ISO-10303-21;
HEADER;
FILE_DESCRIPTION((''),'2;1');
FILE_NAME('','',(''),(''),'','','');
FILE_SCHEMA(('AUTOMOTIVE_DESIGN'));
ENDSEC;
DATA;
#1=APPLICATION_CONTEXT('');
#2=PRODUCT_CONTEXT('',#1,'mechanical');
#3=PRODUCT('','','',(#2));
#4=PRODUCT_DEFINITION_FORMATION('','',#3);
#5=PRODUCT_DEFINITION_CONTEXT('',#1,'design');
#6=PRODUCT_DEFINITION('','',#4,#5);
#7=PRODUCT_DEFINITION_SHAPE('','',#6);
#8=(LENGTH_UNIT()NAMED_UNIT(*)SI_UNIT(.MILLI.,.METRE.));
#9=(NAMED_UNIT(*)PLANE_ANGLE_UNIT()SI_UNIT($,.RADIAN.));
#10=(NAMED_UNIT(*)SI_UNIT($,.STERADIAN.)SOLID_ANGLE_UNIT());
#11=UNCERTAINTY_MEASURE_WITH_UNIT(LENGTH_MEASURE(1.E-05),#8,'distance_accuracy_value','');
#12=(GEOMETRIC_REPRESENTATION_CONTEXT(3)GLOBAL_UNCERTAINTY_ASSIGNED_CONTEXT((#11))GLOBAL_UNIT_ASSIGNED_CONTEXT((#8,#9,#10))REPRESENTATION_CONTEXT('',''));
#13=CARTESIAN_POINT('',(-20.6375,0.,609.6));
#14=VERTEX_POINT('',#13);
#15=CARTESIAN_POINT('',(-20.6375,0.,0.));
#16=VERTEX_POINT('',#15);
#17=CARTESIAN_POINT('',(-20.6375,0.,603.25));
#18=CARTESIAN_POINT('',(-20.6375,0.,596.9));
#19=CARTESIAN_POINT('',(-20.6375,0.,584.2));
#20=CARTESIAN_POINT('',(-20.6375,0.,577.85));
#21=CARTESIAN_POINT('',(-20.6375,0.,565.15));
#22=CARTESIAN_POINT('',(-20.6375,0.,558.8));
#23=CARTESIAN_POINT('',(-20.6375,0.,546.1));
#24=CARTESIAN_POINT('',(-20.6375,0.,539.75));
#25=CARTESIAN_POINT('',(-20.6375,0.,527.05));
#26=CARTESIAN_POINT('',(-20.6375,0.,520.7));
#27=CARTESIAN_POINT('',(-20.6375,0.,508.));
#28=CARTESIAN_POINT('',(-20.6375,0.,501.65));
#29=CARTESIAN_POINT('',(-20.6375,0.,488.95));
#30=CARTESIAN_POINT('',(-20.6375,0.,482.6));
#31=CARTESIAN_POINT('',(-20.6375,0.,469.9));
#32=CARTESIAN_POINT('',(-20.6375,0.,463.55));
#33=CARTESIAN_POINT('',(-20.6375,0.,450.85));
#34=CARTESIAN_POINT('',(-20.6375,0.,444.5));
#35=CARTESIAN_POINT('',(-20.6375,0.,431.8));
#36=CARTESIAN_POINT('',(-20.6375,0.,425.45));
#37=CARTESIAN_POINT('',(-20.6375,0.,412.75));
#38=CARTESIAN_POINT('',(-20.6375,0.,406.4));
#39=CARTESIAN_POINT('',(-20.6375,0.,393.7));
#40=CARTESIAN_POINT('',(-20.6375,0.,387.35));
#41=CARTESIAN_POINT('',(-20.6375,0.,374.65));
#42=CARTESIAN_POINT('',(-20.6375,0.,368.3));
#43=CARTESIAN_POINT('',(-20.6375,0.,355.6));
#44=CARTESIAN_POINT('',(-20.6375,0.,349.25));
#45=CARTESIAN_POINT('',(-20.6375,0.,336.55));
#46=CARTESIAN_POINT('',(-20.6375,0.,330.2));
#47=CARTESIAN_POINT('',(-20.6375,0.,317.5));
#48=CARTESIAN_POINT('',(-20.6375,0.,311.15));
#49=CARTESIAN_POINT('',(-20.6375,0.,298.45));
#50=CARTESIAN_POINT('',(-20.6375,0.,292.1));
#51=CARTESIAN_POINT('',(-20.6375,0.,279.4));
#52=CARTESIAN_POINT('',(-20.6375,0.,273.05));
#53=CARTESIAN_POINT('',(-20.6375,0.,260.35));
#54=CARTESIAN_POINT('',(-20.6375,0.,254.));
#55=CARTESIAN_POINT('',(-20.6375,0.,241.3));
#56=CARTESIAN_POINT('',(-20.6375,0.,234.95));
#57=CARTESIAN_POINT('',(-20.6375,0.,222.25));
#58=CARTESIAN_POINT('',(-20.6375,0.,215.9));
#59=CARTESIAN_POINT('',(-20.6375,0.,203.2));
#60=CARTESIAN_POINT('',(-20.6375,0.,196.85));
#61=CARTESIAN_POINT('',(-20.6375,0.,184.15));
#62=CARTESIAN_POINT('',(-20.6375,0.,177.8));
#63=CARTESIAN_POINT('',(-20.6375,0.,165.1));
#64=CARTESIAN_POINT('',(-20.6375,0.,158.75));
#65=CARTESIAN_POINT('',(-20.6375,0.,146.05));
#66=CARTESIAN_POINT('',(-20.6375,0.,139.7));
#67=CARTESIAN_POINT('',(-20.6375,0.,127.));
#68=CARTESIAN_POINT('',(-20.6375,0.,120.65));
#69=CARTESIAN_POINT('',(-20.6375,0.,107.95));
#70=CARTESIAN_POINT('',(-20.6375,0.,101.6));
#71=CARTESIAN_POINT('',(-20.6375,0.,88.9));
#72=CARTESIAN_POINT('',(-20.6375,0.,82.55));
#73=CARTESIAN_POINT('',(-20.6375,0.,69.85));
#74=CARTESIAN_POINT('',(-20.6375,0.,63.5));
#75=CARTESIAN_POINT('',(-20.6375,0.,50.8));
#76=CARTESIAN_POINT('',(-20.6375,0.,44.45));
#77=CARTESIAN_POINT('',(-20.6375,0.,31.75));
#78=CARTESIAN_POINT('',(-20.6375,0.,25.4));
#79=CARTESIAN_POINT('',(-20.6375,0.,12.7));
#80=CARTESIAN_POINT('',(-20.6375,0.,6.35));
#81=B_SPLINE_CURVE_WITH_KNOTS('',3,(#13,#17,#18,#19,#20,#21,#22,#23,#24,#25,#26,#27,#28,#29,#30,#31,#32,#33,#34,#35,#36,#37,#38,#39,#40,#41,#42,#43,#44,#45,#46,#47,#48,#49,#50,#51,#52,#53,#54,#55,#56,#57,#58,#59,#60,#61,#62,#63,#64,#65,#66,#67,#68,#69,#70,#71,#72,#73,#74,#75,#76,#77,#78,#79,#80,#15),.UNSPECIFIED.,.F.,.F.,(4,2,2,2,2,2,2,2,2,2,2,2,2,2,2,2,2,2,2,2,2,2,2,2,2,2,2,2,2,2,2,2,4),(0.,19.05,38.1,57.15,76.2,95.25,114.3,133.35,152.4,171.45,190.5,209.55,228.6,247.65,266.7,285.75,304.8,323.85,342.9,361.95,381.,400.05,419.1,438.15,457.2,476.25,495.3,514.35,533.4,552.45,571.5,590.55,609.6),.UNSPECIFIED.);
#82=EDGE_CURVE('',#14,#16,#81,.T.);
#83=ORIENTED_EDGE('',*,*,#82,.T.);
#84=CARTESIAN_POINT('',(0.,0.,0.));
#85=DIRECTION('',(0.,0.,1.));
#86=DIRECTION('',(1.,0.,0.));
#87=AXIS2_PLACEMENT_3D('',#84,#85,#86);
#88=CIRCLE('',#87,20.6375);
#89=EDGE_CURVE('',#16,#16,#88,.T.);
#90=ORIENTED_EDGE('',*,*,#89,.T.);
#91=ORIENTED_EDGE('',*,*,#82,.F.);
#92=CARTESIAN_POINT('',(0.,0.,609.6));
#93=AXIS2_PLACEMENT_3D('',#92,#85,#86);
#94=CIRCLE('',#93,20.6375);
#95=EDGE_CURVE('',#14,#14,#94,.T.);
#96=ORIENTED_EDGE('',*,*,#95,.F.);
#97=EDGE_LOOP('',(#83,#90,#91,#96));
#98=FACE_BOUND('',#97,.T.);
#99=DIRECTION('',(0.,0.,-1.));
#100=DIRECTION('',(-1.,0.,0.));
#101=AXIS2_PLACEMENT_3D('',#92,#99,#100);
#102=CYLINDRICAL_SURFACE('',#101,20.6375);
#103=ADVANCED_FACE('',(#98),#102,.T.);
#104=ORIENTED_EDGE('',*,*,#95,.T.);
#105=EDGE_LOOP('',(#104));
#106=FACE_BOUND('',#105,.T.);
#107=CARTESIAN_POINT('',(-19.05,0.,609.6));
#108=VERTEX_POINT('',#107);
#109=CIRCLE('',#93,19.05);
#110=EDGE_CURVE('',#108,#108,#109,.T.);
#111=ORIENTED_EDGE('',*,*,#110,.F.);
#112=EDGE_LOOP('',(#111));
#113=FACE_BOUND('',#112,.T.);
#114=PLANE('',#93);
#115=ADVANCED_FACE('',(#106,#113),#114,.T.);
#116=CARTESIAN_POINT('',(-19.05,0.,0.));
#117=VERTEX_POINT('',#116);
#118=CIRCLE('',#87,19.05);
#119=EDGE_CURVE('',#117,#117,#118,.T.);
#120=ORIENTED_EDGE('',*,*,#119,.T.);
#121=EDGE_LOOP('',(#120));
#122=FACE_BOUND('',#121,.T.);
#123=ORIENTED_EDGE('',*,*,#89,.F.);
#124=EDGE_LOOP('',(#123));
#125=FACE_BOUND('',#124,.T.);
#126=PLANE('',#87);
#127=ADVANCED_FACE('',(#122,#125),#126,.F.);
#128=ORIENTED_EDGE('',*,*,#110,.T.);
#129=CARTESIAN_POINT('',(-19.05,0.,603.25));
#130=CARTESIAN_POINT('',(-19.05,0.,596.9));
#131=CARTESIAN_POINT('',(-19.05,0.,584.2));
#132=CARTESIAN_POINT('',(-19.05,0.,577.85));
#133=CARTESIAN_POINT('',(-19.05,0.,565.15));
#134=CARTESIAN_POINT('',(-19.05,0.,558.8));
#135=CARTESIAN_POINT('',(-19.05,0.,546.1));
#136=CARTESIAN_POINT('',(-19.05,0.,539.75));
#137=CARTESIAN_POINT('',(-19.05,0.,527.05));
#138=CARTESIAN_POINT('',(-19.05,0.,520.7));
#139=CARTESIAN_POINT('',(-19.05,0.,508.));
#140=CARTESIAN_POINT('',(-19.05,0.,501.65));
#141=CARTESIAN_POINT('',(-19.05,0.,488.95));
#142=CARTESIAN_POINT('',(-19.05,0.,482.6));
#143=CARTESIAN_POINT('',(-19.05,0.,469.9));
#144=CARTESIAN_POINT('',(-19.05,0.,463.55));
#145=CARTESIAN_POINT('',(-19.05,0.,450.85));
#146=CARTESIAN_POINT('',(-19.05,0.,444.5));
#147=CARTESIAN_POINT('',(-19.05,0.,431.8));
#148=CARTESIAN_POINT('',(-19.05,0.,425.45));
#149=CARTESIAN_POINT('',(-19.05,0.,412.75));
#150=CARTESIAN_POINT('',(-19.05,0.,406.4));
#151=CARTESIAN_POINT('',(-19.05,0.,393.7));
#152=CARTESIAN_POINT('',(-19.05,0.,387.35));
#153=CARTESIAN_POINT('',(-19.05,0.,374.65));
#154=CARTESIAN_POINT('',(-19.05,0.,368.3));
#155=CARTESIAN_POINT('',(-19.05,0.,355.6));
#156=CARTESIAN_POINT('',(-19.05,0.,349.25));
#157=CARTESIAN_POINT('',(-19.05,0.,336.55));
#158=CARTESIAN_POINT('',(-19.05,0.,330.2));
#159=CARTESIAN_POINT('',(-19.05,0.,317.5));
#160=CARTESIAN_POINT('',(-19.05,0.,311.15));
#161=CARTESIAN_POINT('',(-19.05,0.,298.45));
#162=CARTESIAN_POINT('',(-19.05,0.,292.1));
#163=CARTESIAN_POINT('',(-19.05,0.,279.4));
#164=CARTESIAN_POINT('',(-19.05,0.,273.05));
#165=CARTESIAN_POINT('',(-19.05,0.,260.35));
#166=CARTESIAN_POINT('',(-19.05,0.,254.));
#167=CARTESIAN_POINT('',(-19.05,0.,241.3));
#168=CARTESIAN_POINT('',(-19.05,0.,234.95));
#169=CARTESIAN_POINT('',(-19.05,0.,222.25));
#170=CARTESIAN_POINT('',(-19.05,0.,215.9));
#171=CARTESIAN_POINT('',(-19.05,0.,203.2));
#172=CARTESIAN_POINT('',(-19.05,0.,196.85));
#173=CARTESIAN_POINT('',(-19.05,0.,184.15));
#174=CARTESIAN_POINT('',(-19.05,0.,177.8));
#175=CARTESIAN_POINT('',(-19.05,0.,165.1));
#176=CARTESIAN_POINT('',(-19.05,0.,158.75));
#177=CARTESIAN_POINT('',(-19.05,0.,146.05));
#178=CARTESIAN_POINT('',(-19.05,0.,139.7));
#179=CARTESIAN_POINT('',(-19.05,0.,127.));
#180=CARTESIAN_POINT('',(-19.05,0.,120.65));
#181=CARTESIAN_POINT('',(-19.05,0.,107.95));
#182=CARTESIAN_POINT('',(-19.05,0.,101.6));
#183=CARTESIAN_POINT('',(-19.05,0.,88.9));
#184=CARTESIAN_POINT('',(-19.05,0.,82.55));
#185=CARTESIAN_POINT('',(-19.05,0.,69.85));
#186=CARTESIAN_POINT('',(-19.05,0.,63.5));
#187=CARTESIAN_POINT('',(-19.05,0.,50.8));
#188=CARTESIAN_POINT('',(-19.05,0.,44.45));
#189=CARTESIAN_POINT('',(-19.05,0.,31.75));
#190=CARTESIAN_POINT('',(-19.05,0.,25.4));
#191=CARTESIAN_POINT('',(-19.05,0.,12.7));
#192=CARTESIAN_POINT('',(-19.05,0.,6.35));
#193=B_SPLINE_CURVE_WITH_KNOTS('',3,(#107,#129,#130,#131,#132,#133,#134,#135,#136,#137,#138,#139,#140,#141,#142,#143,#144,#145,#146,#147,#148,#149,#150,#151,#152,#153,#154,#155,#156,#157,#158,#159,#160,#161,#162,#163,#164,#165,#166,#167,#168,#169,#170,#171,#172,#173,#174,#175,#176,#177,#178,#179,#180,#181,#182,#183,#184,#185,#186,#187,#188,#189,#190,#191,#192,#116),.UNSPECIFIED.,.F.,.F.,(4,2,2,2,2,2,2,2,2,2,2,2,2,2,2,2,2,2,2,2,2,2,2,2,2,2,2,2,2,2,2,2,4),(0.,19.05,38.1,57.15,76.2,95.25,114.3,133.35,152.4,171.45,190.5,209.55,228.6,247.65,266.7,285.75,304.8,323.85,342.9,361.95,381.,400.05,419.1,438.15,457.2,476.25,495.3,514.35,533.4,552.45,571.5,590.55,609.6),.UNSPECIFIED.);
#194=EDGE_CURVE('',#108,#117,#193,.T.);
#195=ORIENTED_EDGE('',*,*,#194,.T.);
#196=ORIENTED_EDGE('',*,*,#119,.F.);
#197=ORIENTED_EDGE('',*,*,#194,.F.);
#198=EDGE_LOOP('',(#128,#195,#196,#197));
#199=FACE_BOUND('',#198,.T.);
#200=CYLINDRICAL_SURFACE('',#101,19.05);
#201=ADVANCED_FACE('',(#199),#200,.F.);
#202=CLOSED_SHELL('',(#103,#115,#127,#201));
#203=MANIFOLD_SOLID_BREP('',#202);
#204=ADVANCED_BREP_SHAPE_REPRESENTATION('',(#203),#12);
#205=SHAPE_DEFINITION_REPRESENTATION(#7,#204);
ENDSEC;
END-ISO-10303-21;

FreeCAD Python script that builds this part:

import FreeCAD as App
import Part
import Sketcher
Q = App.Units.Quantity

doc = App.newDocument("Part")
body = doc.addObject("PartDesign::Body", "Body")

# Sketch on XY plane
sketch1 = body.newObject("Sketcher::SketchObject", "Sketch")
sketch1.AttachmentSupport = (doc.getObject("XY_Plane"), [""])
sketch1.MapMode = "FlatFace"
sketch1.addGeometry(Part.Circle(App.Vector(0, 0, 0), App.Vector(0, 0, 1), 21), False)
sketch1.addGeometry(Part.Circle(App.Vector(0, 0, 0), App.Vector(0, 0, 1), 19), False)
sketch1.addConstraint(Sketcher.Constraint("Coincident", 0, 3, -1, 1))
sketch1.addConstraint(Sketcher.Constraint("Coincident", 1, 3, -1, 1))
sketch1.addConstraint(Sketcher.Constraint("Diameter", 1, Q("1.5 in")))
sketch1.addConstraint(Sketcher.Constraint("Diameter", 0, Q("1.625 in")))
pad1 = body.newObject("PartDesign::Pad", "Pad")
pad1.Profile = sketch1
pad1.Length = Q("24 in")

doc.recompute()
